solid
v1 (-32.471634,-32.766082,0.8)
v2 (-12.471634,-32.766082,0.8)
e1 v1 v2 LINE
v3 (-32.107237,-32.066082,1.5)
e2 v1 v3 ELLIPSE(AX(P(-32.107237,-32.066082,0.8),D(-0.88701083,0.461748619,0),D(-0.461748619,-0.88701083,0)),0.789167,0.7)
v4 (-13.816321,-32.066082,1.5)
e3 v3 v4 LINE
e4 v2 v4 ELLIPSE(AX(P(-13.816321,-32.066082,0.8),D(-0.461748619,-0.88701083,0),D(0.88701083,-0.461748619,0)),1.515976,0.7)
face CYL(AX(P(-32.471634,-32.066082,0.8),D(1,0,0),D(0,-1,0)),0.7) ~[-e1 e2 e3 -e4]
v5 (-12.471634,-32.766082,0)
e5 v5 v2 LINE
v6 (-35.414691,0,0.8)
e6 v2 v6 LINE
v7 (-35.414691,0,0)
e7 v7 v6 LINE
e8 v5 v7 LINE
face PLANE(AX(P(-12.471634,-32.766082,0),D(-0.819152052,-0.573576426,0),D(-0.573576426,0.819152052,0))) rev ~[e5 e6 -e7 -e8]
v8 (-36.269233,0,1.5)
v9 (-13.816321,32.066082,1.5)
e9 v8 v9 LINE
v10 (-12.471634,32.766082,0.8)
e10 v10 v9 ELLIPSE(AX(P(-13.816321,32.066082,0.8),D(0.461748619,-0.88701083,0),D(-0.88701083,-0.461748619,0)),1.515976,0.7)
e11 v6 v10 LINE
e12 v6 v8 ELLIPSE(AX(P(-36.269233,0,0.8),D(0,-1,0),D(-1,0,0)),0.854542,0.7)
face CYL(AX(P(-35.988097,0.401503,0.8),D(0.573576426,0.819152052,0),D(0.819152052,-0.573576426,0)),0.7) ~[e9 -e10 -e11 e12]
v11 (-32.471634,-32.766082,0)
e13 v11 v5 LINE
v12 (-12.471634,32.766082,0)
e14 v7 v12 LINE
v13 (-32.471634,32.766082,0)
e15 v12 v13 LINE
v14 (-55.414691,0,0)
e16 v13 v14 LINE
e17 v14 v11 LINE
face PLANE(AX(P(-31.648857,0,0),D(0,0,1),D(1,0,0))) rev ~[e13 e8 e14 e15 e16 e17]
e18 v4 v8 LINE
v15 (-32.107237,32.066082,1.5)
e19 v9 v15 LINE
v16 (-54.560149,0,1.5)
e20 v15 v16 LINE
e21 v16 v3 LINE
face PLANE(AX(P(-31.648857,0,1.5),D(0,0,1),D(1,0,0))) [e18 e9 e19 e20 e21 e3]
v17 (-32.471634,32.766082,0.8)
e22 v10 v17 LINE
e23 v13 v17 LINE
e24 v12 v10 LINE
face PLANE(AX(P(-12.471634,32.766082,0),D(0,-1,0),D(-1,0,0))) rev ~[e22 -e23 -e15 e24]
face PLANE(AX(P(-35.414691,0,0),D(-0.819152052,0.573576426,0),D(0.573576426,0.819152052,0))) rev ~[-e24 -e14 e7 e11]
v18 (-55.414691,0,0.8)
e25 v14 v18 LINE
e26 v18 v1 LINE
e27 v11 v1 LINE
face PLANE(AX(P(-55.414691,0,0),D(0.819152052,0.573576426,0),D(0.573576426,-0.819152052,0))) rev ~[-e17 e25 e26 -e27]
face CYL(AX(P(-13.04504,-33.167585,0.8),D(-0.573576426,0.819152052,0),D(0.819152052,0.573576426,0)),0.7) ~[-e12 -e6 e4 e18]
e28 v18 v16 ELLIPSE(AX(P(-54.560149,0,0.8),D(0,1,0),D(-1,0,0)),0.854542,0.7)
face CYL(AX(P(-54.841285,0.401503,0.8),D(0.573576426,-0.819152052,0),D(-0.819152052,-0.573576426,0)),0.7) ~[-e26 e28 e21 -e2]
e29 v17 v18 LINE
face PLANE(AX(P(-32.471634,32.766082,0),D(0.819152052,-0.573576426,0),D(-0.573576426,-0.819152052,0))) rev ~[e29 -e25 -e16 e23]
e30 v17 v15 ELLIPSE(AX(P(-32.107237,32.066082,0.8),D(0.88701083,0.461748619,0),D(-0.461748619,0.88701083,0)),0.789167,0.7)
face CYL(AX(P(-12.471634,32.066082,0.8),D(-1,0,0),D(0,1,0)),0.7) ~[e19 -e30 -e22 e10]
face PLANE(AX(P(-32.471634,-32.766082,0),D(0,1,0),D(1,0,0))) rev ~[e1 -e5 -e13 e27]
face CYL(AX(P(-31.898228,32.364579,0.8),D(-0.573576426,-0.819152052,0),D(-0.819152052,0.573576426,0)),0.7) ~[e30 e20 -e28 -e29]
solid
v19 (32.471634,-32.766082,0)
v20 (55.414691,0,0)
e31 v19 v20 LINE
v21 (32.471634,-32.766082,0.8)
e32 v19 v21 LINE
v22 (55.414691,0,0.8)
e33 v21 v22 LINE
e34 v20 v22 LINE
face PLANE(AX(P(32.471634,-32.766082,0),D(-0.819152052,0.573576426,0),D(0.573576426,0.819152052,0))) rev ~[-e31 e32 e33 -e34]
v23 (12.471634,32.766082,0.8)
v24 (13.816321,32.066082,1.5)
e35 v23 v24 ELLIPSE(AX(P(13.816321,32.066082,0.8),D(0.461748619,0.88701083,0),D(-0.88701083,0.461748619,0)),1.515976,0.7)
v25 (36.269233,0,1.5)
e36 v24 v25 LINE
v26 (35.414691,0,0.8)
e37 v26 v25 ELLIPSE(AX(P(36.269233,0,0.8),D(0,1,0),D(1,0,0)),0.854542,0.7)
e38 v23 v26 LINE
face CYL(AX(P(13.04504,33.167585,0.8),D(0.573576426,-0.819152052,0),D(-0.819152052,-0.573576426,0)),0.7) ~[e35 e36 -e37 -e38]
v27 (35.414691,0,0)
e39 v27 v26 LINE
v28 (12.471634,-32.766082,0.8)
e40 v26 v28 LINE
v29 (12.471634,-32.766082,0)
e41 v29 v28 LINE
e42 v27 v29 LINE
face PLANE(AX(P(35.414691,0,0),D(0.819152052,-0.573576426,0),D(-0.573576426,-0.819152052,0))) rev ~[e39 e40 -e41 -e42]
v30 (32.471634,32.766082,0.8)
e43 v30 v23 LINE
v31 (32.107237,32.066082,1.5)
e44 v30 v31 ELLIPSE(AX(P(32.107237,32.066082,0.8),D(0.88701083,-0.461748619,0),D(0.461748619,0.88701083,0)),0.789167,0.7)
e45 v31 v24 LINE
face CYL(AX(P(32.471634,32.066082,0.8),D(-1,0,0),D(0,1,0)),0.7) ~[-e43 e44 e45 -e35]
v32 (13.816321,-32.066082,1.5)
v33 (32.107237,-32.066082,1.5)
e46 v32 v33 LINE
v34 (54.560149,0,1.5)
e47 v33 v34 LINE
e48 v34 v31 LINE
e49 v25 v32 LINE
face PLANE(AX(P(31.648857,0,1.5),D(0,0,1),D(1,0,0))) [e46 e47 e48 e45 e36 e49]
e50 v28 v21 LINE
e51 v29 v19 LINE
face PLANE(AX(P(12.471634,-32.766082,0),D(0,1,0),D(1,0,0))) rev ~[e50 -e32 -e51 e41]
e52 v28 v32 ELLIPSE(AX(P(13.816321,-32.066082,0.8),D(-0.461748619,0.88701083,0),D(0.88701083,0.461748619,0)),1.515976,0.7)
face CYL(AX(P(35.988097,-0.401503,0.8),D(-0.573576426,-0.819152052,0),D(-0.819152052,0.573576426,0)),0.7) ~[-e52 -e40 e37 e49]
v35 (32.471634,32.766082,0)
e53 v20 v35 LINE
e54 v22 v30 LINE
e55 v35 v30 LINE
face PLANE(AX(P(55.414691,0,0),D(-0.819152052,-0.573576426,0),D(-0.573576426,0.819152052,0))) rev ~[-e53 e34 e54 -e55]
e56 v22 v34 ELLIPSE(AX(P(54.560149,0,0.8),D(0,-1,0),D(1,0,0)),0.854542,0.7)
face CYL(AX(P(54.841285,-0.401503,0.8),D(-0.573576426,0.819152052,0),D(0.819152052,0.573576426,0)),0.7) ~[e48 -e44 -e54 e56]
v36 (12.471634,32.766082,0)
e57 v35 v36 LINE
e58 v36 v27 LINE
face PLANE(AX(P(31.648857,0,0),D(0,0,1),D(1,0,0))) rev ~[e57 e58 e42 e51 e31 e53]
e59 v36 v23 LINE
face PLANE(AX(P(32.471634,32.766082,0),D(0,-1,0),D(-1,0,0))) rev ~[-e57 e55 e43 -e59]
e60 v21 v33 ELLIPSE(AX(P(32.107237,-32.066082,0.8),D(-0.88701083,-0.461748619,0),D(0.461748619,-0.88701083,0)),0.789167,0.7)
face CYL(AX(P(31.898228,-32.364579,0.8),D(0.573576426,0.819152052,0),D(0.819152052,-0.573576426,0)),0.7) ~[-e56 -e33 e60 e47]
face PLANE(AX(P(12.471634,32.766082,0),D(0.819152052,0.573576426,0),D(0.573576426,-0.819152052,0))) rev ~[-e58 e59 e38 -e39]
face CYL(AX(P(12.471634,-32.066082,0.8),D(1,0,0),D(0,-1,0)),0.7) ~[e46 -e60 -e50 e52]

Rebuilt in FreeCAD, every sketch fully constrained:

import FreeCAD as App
import Part
import Sketcher
from FreeCAD import Vector
Q = App.Units.Quantity


def edges_at(feature, points):
    """Names of the edges that pass closest to the given points."""
    edges = feature.Shape.Edges
    near = lambda p: min(range(len(edges)), key=lambda i: edges[i].distToShape(Part.Vertex(*p))[0])
    return sorted({f"Edge{near(p) + 1}" for p in points})


def add_polygon(sketch, points):
    """Adds a closed chain of lines whose ends are joined by coincident constraints."""
    first, n = sketch.GeometryCount, len(points)
    for a, b in zip(points, points[1:] + points[:1]):
        sketch.addGeometry(Part.LineSegment(App.Vector(*a, 0), App.Vector(*b, 0)), False)
    for i in range(n):
        sketch.addConstraint(Sketcher.Constraint("Coincident", first + i, 2, first + (i + 1) % n, 1))

doc = App.newDocument("Part")
body = doc.addObject("PartDesign::Body", "Body")
body.AllowCompound = True

# Sketch on XY plane
sketch1 = body.newObject("Sketcher::SketchObject", "Sketch")
sketch1.AttachmentSupport = (doc.getObject("XY_Plane"), [""])
sketch1.MapMode = "FlatFace"
add_polygon(sketch1, [(-32.471634, 32.766082), (-55.414691, 0), (-32.471634, -32.766082), (-12.471634, -32.766082), (-35.414691, 0), (-12.471634, 32.766082)])  # lines 0-5
add_polygon(sketch1, [(32.471634, 32.766082), (12.471634, 32.766082), (35.414691, 0), (12.471634, -32.766082), (32.471634, -32.766082), (55.414691, 0)])  # lines 6-11
sketch1.addConstraint([
    Sketcher.Constraint("Horizontal", 2),
    Sketcher.Constraint("Horizontal", 5),
    Sketcher.Constraint("Horizontal", 6),
    Sketcher.Constraint("Horizontal", 9),
    Sketcher.Constraint("Symmetric", 2, 2, 6, 2, -1, 1),
    Sketcher.Constraint("Symmetric", 3, 2, 7, 2, -1, 1),
    Sketcher.Constraint("Symmetric", 4, 2, 8, 2, -1, 1),
    Sketcher.Constraint("Symmetric", 0, 2, 10, 2, -1, 1),
    Sketcher.Constraint("Symmetric", 4, 2, 6, 2, -2),
    Sketcher.Constraint("PointOnObject", 0, 2, -1),
    Sketcher.Constraint("PointOnObject", 3, 2, -1),
    Sketcher.Constraint("Parallel", 1, 3),
    Sketcher.Constraint("Parallel", 0, 4),
    Sketcher.Constraint("Parallel", 8, 10),
    Sketcher.Constraint("Parallel", 7, 11),
    Sketcher.Constraint("DistanceX", 2, 1, 2, 2, Q("20 mm")),
    Sketcher.Constraint("Angle", 0, Q("-124.999999 deg")),
    Sketcher.Constraint("Distance", 0, Q("40 mm")),
    Sketcher.Constraint("DistanceX", 0, 2, -1, 1, Q("55.414691 mm")),
])
pad1 = body.newObject("PartDesign::Pad", "Pad")
pad1.Profile = sketch1
pad1.Length = 1.5
doc.recompute()

fillet = body.newObject("PartDesign::Fillet", "Fillet")
fillet.Base = (pad1, edges_at(pad1, [
    (-22.472, 32.766, 1.5),
    (-43.943, 16.383, 1.5),
    (-43.943, -16.383, 1.5),
    (-22.472, -32.766, 1.5),
    (-23.943, -16.383, 1.5),
    (-23.943, 16.383, 1.5),
    (22.472, -32.766, 1.5),
    (43.943, -16.383, 1.5),
    (43.943, 16.383, 1.5),
    (22.472, 32.766, 1.5),
    (23.943, 16.383, 1.5),
    (23.943, -16.383, 1.5),
]))
fillet.Radius = 0.7

doc.recompute()
